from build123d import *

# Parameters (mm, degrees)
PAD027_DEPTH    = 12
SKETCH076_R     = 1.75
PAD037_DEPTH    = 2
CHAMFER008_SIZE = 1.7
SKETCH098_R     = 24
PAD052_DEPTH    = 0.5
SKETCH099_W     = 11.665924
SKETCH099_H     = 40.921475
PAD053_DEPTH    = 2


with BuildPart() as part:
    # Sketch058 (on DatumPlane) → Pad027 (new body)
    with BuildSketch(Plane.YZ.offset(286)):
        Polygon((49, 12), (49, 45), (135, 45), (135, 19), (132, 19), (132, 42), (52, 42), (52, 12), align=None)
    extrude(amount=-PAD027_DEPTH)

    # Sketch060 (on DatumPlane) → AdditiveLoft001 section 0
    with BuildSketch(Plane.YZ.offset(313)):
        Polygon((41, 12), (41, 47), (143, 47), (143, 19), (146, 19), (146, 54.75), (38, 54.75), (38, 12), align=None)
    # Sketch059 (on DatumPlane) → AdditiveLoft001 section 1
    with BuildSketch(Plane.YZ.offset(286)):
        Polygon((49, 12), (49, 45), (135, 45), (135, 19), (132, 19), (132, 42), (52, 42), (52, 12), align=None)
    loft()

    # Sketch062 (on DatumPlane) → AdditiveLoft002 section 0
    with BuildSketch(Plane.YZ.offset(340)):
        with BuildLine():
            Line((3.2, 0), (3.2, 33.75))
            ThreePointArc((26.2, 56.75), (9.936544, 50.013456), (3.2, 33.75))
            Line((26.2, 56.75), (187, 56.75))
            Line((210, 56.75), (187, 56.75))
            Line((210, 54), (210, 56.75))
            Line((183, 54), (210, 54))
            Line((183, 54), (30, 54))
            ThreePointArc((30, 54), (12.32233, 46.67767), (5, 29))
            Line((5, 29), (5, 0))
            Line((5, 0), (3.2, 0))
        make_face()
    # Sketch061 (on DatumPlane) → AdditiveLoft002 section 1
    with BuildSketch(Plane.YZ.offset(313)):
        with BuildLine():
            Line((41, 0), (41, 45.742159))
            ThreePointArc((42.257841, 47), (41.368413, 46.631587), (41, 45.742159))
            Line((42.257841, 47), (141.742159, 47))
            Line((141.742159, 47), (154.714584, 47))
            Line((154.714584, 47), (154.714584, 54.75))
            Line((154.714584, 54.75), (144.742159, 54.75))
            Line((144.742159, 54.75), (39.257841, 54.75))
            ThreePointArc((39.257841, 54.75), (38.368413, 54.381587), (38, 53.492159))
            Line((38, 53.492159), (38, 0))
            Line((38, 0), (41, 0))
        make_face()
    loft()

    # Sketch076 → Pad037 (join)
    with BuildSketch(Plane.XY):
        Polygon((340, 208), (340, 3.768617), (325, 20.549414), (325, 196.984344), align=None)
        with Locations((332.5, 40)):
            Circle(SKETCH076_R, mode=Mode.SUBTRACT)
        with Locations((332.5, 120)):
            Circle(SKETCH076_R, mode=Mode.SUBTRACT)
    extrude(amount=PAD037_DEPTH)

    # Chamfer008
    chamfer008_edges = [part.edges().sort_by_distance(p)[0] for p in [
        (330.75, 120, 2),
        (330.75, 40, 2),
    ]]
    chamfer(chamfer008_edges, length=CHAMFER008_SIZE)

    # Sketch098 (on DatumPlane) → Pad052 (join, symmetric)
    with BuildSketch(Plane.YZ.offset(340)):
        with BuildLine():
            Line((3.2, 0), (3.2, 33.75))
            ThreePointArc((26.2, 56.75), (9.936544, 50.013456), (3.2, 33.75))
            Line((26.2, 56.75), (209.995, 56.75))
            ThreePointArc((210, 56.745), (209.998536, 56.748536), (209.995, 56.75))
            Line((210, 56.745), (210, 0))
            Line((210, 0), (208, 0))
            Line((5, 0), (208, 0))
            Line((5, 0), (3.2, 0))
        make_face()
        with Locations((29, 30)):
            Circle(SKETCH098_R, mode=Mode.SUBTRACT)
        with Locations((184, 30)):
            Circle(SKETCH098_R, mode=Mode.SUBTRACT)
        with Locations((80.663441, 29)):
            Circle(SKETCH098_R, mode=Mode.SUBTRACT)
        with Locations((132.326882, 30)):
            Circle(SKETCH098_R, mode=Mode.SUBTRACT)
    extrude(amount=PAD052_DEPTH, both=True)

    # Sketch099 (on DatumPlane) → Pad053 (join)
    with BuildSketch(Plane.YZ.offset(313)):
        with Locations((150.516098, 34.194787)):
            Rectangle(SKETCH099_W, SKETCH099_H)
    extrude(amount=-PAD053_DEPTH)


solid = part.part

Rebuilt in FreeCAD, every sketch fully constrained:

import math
import FreeCAD as App
import Part
import Sketcher
from FreeCAD import Vector


def edges_at(feature, points):
    """Names of the edges that pass closest to the given points."""
    edges = feature.Shape.Edges
    near = lambda p: min(range(len(edges)), key=lambda i: edges[i].distToShape(Part.Vertex(*p))[0])
    return sorted({f"Edge{near(p) + 1}" for p in points})

doc = App.newDocument("Part")
body = doc.addObject("PartDesign::Body", "Body")

# Sketch on YZ plane
sketch1 = doc.addObject("Sketcher::SketchObject", "Sketch")
body.addObject(sketch1)
sketch1.AttachmentSupport = (doc.YZ_Plane, [""])
sketch1.MapMode = "FlatFace"
sketch1.AttachmentOffset = App.Placement(Vector(0, 0, 286), App.Rotation())
sketch1.addGeometry([
    Part.LineSegment(Vector(49, 45, 0), Vector(49, 12, 0)),  # 0
    Part.LineSegment(Vector(49, 12, 0), Vector(52, 12, 0)),  # 1
    Part.LineSegment(Vector(52, 12, 0), Vector(52, 42, 0)),  # 2
    Part.LineSegment(Vector(52, 42, 0), Vector(132, 42, 0)),  # 3
    Part.LineSegment(Vector(132, 42, 0), Vector(132, 19, 0)),  # 4
    Part.LineSegment(Vector(132, 19, 0), Vector(135, 19, 0)),  # 5
    Part.LineSegment(Vector(135, 19, 0), Vector(135, 45, 0)),  # 6
    Part.LineSegment(Vector(135, 45, 0), Vector(49, 45, 0)),  # 7
], False)
sketch1.addConstraint([
    Sketcher.Constraint("Coincident", 0, 2, 1, 1),
    Sketcher.Constraint("Coincident", 1, 2, 2, 1),
    Sketcher.Constraint("Coincident", 2, 2, 3, 1),
    Sketcher.Constraint("Coincident", 3, 2, 4, 1),
    Sketcher.Constraint("Coincident", 4, 2, 5, 1),
    Sketcher.Constraint("Coincident", 5, 2, 6, 1),
    Sketcher.Constraint("Coincident", 6, 2, 7, 1),
    Sketcher.Constraint("Coincident", 7, 2, 0, 1),
    Sketcher.Constraint("Vertical", 0),
    Sketcher.Constraint("Horizontal", 1),
    Sketcher.Constraint("Vertical", 2),
    Sketcher.Constraint("Horizontal", 3),
    Sketcher.Constraint("Vertical", 4),
    Sketcher.Constraint("Horizontal", 5),
    Sketcher.Constraint("Vertical", 6),
    Sketcher.Constraint("Horizontal", 7),
    Sketcher.Constraint("Equal", 1, 5),
    Sketcher.Constraint("DistanceX", 1, 1, 1, 2, 3.0),
    Sketcher.Constraint("DistanceX", 3, 1, 3, 2, 80.0),
    Sketcher.Constraint("DistanceY", 0, 2, 0, 1, 33.0),
    Sketcher.Constraint("DistanceY", 2, 1, 2, 2, 30.0),
    Sketcher.Constraint("DistanceY", 4, 2, 4, 1, 23.0),
    Sketcher.Constraint("DistanceX", -1, 1, 0, 2, 49.0),
    Sketcher.Constraint("DistanceY", -1, 1, 0, 2, 12.0),
])
pad1 = doc.addObject("PartDesign::Pad", "Pad")
body.addObject(pad1)
pad1.Profile = sketch1
pad1.Length = 12
pad1.Reversed = True

# Sketch on YZ plane
sketch2 = doc.addObject("Sketcher::SketchObject", "Sketch001")
body.addObject(sketch2)
sketch2.AttachmentSupport = (doc.YZ_Plane, [""])
sketch2.MapMode = "FlatFace"
sketch2.AttachmentOffset = App.Placement(Vector(0, 0, 313), App.Rotation())
sketch2.addGeometry([
    Part.LineSegment(Vector(41, 12, 0), Vector(41, 47, 0)),  # 0
    Part.LineSegment(Vector(41, 47, 0), Vector(143, 47, 0)),  # 1
    Part.LineSegment(Vector(143, 47, 0), Vector(143, 19, 0)),  # 2
    Part.LineSegment(Vector(143, 19, 0), Vector(146, 19, 0)),  # 3
    Part.LineSegment(Vector(146, 19, 0), Vector(146, 54.75, 0)),  # 4
    Part.LineSegment(Vector(146, 54.75, 0), Vector(38, 54.75, 0)),  # 5
    Part.LineSegment(Vector(38, 54.75, 0), Vector(38, 12, 0)),  # 6
    Part.LineSegment(Vector(38, 12, 0), Vector(41, 12, 0)),  # 7
], False)
sketch2.addConstraint([
    Sketcher.Constraint("Coincident", 0, 2, 1, 1),
    Sketcher.Constraint("Coincident", 1, 2, 2, 1),
    Sketcher.Constraint("Coincident", 2, 2, 3, 1),
    Sketcher.Constraint("Coincident", 3, 2, 4, 1),
    Sketcher.Constraint("Coincident", 4, 2, 5, 1),
    Sketcher.Constraint("Coincident", 5, 2, 6, 1),
    Sketcher.Constraint("Coincident", 6, 2, 7, 1),
    Sketcher.Constraint("Coincident", 7, 2, 0, 1),
    Sketcher.Constraint("Vertical", 0),
    Sketcher.Constraint("Horizontal", 1),
    Sketcher.Constraint("Vertical", 2),
    Sketcher.Constraint("Horizontal", 3),
    Sketcher.Constraint("Vertical", 4),
    Sketcher.Constraint("Horizontal", 5),
    Sketcher.Constraint("Vertical", 6),
    Sketcher.Constraint("Horizontal", 7),
    Sketcher.Constraint("Equal", 3, 7),
    Sketcher.Constraint("DistanceX", 1, 1, 1, 2, 102.0),
    Sketcher.Constraint("DistanceX", 3, 1, 3, 2, 3.0),
    Sketcher.Constraint("DistanceY", 0, 1, 0, 2, 35.0),
    Sketcher.Constraint("DistanceY", 2, 2, 2, 1, 28.0),
    Sketcher.Constraint("DistanceX", -1, 1, 0, 2, 41.0),
    Sketcher.Constraint("DistanceY", -1, 1, 0, 2, 47.0),
    Sketcher.Constraint("DistanceY", 4, 1, 4, 2, 35.75),
])

# Sketch on YZ plane
sketch3 = doc.addObject("Sketcher::SketchObject", "Sketch002")
body.addObject(sketch3)
sketch3.AttachmentSupport = (doc.YZ_Plane, [""])
sketch3.MapMode = "FlatFace"
sketch3.AttachmentOffset = App.Placement(Vector(0, 0, 286), App.Rotation())
sketch3.addGeometry([
    Part.LineSegment(Vector(49, 45, 0), Vector(49, 12, 0)),  # 0
    Part.LineSegment(Vector(49, 12, 0), Vector(52, 12, 0)),  # 1
    Part.LineSegment(Vector(52, 12, 0), Vector(52, 42, 0)),  # 2
    Part.LineSegment(Vector(52, 42, 0), Vector(132, 42, 0)),  # 3
    Part.LineSegment(Vector(132, 42, 0), Vector(132, 19, 0)),  # 4
    Part.LineSegment(Vector(132, 19, 0), Vector(135, 19, 0)),  # 5
    Part.LineSegment(Vector(135, 19, 0), Vector(135, 45, 0)),  # 6
    Part.LineSegment(Vector(135, 45, 0), Vector(49, 45, 0)),  # 7
], False)
sketch3.addConstraint([
    Sketcher.Constraint("Coincident", 0, 2, 1, 1),
    Sketcher.Constraint("Coincident", 1, 2, 2, 1),
    Sketcher.Constraint("Coincident", 2, 2, 3, 1),
    Sketcher.Constraint("Coincident", 3, 2, 4, 1),
    Sketcher.Constraint("Coincident", 4, 2, 5, 1),
    Sketcher.Constraint("Coincident", 5, 2, 6, 1),
    Sketcher.Constraint("Coincident", 6, 2, 7, 1),
    Sketcher.Constraint("Coincident", 7, 2, 0, 1),
    Sketcher.Constraint("Vertical", 0),
    Sketcher.Constraint("Horizontal", 1),
    Sketcher.Constraint("Vertical", 2),
    Sketcher.Constraint("Horizontal", 3),
    Sketcher.Constraint("Vertical", 4),
    Sketcher.Constraint("Horizontal", 5),
    Sketcher.Constraint("Vertical", 6),
    Sketcher.Constraint("Horizontal", 7),
    Sketcher.Constraint("Equal", 1, 5),
    Sketcher.Constraint("DistanceX", 1, 1, 1, 2, 3.0),
    Sketcher.Constraint("DistanceX", 3, 1, 3, 2, 80.0),
    Sketcher.Constraint("DistanceY", 0, 2, 0, 1, 33.0),
    Sketcher.Constraint("DistanceY", 2, 1, 2, 2, 30.0),
    Sketcher.Constraint("DistanceY", 4, 2, 4, 1, 23.0),
    Sketcher.Constraint("DistanceX", -1, 1, 0, 2, 49.0),
    Sketcher.Constraint("DistanceY", -1, 1, 0, 2, 12.0),
])

additiveloft = doc.addObject("PartDesign::AdditiveLoft", "AdditiveLoft")
body.addObject(additiveloft)
additiveloft.Profile = sketch2
additiveloft.Sections = [sketch3]

# Sketch on YZ plane
sketch4 = doc.addObject("Sketcher::SketchObject", "Sketch003")
body.addObject(sketch4)
sketch4.AttachmentSupport = (doc.YZ_Plane, [""])
sketch4.MapMode = "FlatFace"
sketch4.AttachmentOffset = App.Placement(Vector(0, 0, 340), App.Rotation())
sketch4.addGeometry([
    Part.LineSegment(Vector(3.2, 33.75, 0), Vector(3.2, 0, 0)),  # 0
    Part.LineSegment(Vector(3.2, 0, 0), Vector(5, 0, 0)),  # 1
    Part.LineSegment(Vector(5, 0, 0), Vector(5, 29, 0)),  # 2
    Part.ArcOfCircle(Part.Circle(Vector(29.999998, 29.000002, 0), Vector(0, 0, 1), 24.999998), math.radians(89.999996), math.radians(180.000004)),  # 3
    Part.LineSegment(Vector(30, 54, 0), Vector(210, 54, 0)),  # 4
    Part.LineSegment(Vector(210, 54, 0), Vector(210, 56.75, 0)),  # 5
    Part.LineSegment(Vector(210, 56.75, 0), Vector(26.2, 56.75, 0)),  # 6
    Part.ArcOfCircle(Part.Circle(Vector(26.2, 33.75, 0), Vector(0, 0, 1), 23), math.radians(90), math.radians(180)),  # 7
], False)
sketch4.addConstraint([
    Sketcher.Constraint("Coincident", 0, 2, 1, 1),
    Sketcher.Constraint("Coincident", 1, 2, 2, 1),
    Sketcher.Constraint("Tangent", 2, 2, 3, 2),
    Sketcher.Constraint("Tangent", 3, 1, 4, 1),
    Sketcher.Constraint("Coincident", 4, 2, 5, 1),
    Sketcher.Constraint("Coincident", 5, 2, 6, 1),
    Sketcher.Constraint("Tangent", 6, 2, 7, 1),
    Sketcher.Constraint("Tangent", 7, 2, 0, 1),
    Sketcher.Constraint("Vertical", 0),
    Sketcher.Constraint("Horizontal", 1),
    Sketcher.Constraint("Vertical", 2),
    Sketcher.Constraint("Horizontal", 4),
    Sketcher.Constraint("Vertical", 5),
    Sketcher.Constraint("Horizontal", 6),
    Sketcher.Constraint("PointOnObject", 0, 2, -1),
    Sketcher.Constraint("Radius", 3, 24.999998),
    Sketcher.Constraint("Radius", 7, 23.0),
    Sketcher.Constraint("DistanceX", 4, 1, 4, 2, 180.0),
    Sketcher.Constraint("DistanceY", 2, 1, 2, 2, 29.0),
    Sketcher.Constraint("DistanceX", 1, 1, 1, 2, 1.8),
    Sketcher.Constraint("DistanceX", -1, 1, 3, 3, 29.999998),
    Sketcher.Constraint("DistanceY", 0, 2, 0, 1, 33.75),
])

# Sketch on YZ plane
sketch5 = doc.addObject("Sketcher::SketchObject", "Sketch004")
body.addObject(sketch5)
sketch5.AttachmentSupport = (doc.YZ_Plane, [""])
sketch5.MapMode = "FlatFace"
sketch5.AttachmentOffset = App.Placement(Vector(0, 0, 313), App.Rotation())
sketch5.addGeometry([
    Part.LineSegment(Vector(41, 0, 0), Vector(41, 45.742159, 0)),  # 0
    Part.ArcOfCircle(Part.Circle(Vector(42.257841, 45.742159, 0), Vector(0, 0, 1), 1.257841), math.radians(89.999985), math.radians(180.000015)),  # 1
    Part.LineSegment(Vector(42.257841, 47, 0), Vector(154.714584, 47, 0)),  # 2
    Part.LineSegment(Vector(154.714584, 47, 0), Vector(154.714584, 54.75, 0)),  # 3
    Part.LineSegment(Vector(154.714584, 54.75, 0), Vector(39.257841, 54.75, 0)),  # 4
    Part.ArcOfCircle(Part.Circle(Vector(39.257841, 53.492159, 0), Vector(0, 0, 1), 1.257841), math.radians(89.999985), math.radians(180.000015)),  # 5
    Part.LineSegment(Vector(38, 53.492159, 0), Vector(38, 0, 0)),  # 6
    Part.LineSegment(Vector(38, 0, 0), Vector(41, 0, 0)),  # 7
], False)
sketch5.addConstraint([
    Sketcher.Constraint("Tangent", 0, 2, 1, 2),
    Sketcher.Constraint("Tangent", 1, 1, 2, 1),
    Sketcher.Constraint("Coincident", 2, 2, 3, 1),
    Sketcher.Constraint("Coincident", 3, 2, 4, 1),
    Sketcher.Constraint("Tangent", 4, 2, 5, 1),
    Sketcher.Constraint("Tangent", 5, 2, 6, 1),
    Sketcher.Constraint("Coincident", 6, 2, 7, 1),
    Sketcher.Constraint("Coincident", 7, 2, 0, 1),
    Sketcher.Constraint("Vertical", 0),
    Sketcher.Constraint("Horizontal", 2),
    Sketcher.Constraint("Vertical", 3),
    Sketcher.Constraint("Horizontal", 4),
    Sketcher.Constraint("Vertical", 6),
    Sketcher.Constraint("Horizontal", 7),
    Sketcher.Constraint("Equal", 1, 5),
    Sketcher.Constraint("PointOnObject", 6, 2, -1),
    Sketcher.Constraint("DistanceX", 7, 1, 7, 2, 3.0),
    Sketcher.Constraint("DistanceX", -1, 1, 0, 2, 41.0),
    Sketcher.Constraint("DistanceY", -1, 1, 1, 1, 47.0),
    Sketcher.Constraint("DistanceY", 3, 1, 3, 2, 7.75),
    Sketcher.Constraint("Radius", 1, 1.257841),
    Sketcher.Constraint("DistanceX", 2, 1, 2, 2, 112.456743),
])

additiveloft2 = doc.addObject("PartDesign::AdditiveLoft", "AdditiveLoft001")
body.addObject(additiveloft2)
additiveloft2.Profile = sketch4
additiveloft2.Sections = [sketch5]

# Sketch on XY plane
sketch6 = doc.addObject("Sketcher::SketchObject", "Sketch005")
body.addObject(sketch6)
sketch6.AttachmentSupport = (doc.XY_Plane, [""])
sketch6.MapMode = "FlatFace"
sketch6.addGeometry([
    Part.LineSegment(Vector(340, 3.768617, 0), Vector(340, 208, 0)),  # 0
    Part.LineSegment(Vector(340, 208, 0), Vector(325, 196.984344, 0)),  # 1
    Part.LineSegment(Vector(325, 196.984344, 0), Vector(325, 20.549414, 0)),  # 2
    Part.LineSegment(Vector(325, 20.549414, 0), Vector(340, 3.768617, 0)),  # 3
    Part.Circle(Vector(332.5, 40, 0), Vector(0, 0, 1), 1.75),  # 4
    Part.Circle(Vector(332.5, 120, 0), Vector(0, 0, 1), 1.75),  # 5
], False)
sketch6.addConstraint([
    Sketcher.Constraint("Coincident", 0, 2, 1, 1),
    Sketcher.Constraint("Coincident", 1, 2, 2, 1),
    Sketcher.Constraint("Coincident", 2, 2, 3, 1),
    Sketcher.Constraint("Coincident", 3, 2, 0, 1),
    Sketcher.Constraint("Vertical", 0),
    Sketcher.Constraint("Vertical", 2),
    Sketcher.Constraint("Equal", 4, 5),
    Sketcher.Constraint("Vertical", 4, 3, 5, 3),
    Sketcher.Constraint("Diameter", 4, 3.5),
    Sketcher.Constraint("DistanceY", -1, 1, 4, 3, 40.0),
    Sketcher.Constraint("DistanceY", -1, 1, 5, 3, 120.0),
    Sketcher.Constraint("DistanceX", -1, 1, 0, 2, 340.0),
    Sketcher.Constraint("DistanceY", -1, 1, 0, 2, 208.0),
    Sketcher.Constraint("DistanceX", -1, 1, 1, 2, 325.0),
    Sketcher.Constraint("DistanceX", -1, 1, 4, 3, 332.5),
    Sketcher.Constraint("DistanceY", 2, 2, 2, 1, 176.43493),
    Sketcher.Constraint("Distance", 3, 22.507669),
    Sketcher.Constraint("DistanceY", 0, 1, 0, 2, 204.231383),
])
pad2 = doc.addObject("PartDesign::Pad", "Pad001")
body.addObject(pad2)
pad2.Profile = sketch6
pad2.Length = 2
doc.recompute()

chamfer = doc.addObject("PartDesign::Chamfer", "Chamfer")
body.addObject(chamfer)
chamfer.Base = (pad2, edges_at(pad2, [(330.75, 120, 2), (330.75, 40, 2)]))
chamfer.Size = 1.7

# Sketch on YZ plane
sketch7 = doc.addObject("Sketcher::SketchObject", "Sketch006")
body.addObject(sketch7)
sketch7.AttachmentSupport = (doc.YZ_Plane, [""])
sketch7.MapMode = "FlatFace"
sketch7.AttachmentOffset = App.Placement(Vector(0, 0, 340), App.Rotation())
sketch7.addGeometry([
    Part.LineSegment(Vector(3.2, 33.75, 0), Vector(3.2, 0, 0)),  # 0
    Part.LineSegment(Vector(3.2, 0, 0), Vector(210, 0, 0)),  # 1
    Part.LineSegment(Vector(210, 0, 0), Vector(210, 56.745, 0)),  # 2
    Part.ArcOfCircle(Part.Circle(Vector(209.995002, 56.745002, 0), Vector(0, 0, 1), 0.004998), math.radians(-0.018237), math.radians(90.018237)),  # 3
    Part.LineSegment(Vector(209.995, 56.75, 0), Vector(26.2, 56.75, 0)),  # 4
    Part.ArcOfCircle(Part.Circle(Vector(26.2, 33.75, 0), Vector(0, 0, 1), 23), math.radians(90), math.radians(180)),  # 5
    Part.Circle(Vector(80.663441, 29, 0), Vector(0, 0, 1), 24),  # 6
    Part.Circle(Vector(184, 30, 0), Vector(0, 0, 1), 24),  # 7
    Part.Circle(Vector(132.326882, 30, 0), Vector(0, 0, 1), 24),  # 8
    Part.Circle(Vector(29, 30, 0), Vector(0, 0, 1), 24),  # 9
], False)
sketch7.addConstraint([
    Sketcher.Constraint("Coincident", 0, 2, 1, 1),
    Sketcher.Constraint("Coincident", 1, 2, 2, 1),
    Sketcher.Constraint("Coincident", 2, 2, 3, 1),
    Sketcher.Constraint("Coincident", 3, 2, 4, 1),
    Sketcher.Constraint("Tangent", 4, 2, 5, 1),
    Sketcher.Constraint("Tangent", 5, 2, 0, 1),
    Sketcher.Constraint("Vertical", 0),
    Sketcher.Constraint("Horizontal", 1),
    Sketcher.Constraint("Vertical", 2),
    Sketcher.Constraint("Horizontal", 4),
    Sketcher.Constraint("Equal", 6, 7),
    Sketcher.Constraint("Equal", 7, 8),
    Sketcher.Constraint("Equal", 8, 9),
    Sketcher.Constraint("PointOnObject", 0, 2, -1),
    Sketcher.Constraint("Horizontal", 7, 3, 8, 3),
    Sketcher.Constraint("Horizontal", 8, 3, 9, 3),
    Sketcher.Constraint("Horizontal", 3, 3, 2, 2),
    Sketcher.Constraint("Diameter", 6, 48.0),
    Sketcher.Constraint("Radius", 5, 23.0),
    Sketcher.Constraint("DistanceX", 1, 1, 1, 2, 206.8),
    Sketcher.Constraint("DistanceY", -1, 1, 6, 3, 29.0),
    Sketcher.Constraint("DistanceX", -1, 1, 7, 3, 184.0),
    Sketcher.Constraint("DistanceY", -1, 1, 7, 3, 30.0),
    Sketcher.Constraint("DistanceX", -1, 1, 9, 3, 29.0),
    Sketcher.Constraint("DistanceX", -1, 1, 1, 2, 210.0),
    Sketcher.Constraint("Radius", 3, 0.004998),
    Sketcher.Constraint("DistanceY", 0, 2, 0, 1, 33.75),
    Sketcher.Constraint("DistanceX", 4, 2, 4, 1, 183.795),
    Sketcher.Constraint("DistanceX", -1, 1, 6, 3, 80.663441),
    Sketcher.Constraint("DistanceX", 6, 3, 8, 3, 51.663441),
])
pad3 = doc.addObject("PartDesign::Pad", "Pad002")
body.addObject(pad3)
pad3.Profile = sketch7
pad3.Length = 1
pad3.Midplane = True

# Sketch on YZ plane
sketch8 = doc.addObject("Sketcher::SketchObject", "Sketch007")
body.addObject(sketch8)
sketch8.AttachmentSupport = (doc.YZ_Plane, [""])
sketch8.MapMode = "FlatFace"
sketch8.AttachmentOffset = App.Placement(Vector(0, 0, 313), App.Rotation())
sketch8.addGeometry([
    Part.LineSegment(Vector(144.683136, 54.655524, 0), Vector(144.683136, 13.734049, 0)),
    Part.LineSegment(Vector(144.683136, 13.734049, 0), Vector(156.34906, 13.734049, 0)),
    Part.LineSegment(Vector(156.34906, 13.734049, 0), Vector(156.34906, 54.655524, 0)),
    Part.LineSegment(Vector(156.34906, 54.655524, 0), Vector(144.683136, 54.655524, 0)),
], False)
sketch8.addConstraint([
    Sketcher.Constraint("Coincident", 0, 2, 1, 1),
    Sketcher.Constraint("Coincident", 1, 2, 2, 1),
    Sketcher.Constraint("Coincident", 2, 2, 3, 1),
    Sketcher.Constraint("Coincident", 3, 2, 0, 1),
    Sketcher.Constraint("Vertical", 0),
    Sketcher.Constraint("Horizontal", 1),
    Sketcher.Constraint("Vertical", 2),
    Sketcher.Constraint("Horizontal", 3),
    Sketcher.Constraint("DistanceX", 1, 1, 1, 2, 11.665924),
    Sketcher.Constraint("DistanceY", 0, 2, 0, 1, 40.921475),
    Sketcher.Constraint("DistanceY", -1, 1, 0, 2, 13.734049),
    Sketcher.Constraint("DistanceX", -1, 1, 1, 2, 156.34906),
])
pad4 = doc.addObject("PartDesign::Pad", "Pad003")
body.addObject(pad4)
pad4.Profile = sketch8
pad4.Length = 2
pad4.Reversed = True

doc.recompute()
